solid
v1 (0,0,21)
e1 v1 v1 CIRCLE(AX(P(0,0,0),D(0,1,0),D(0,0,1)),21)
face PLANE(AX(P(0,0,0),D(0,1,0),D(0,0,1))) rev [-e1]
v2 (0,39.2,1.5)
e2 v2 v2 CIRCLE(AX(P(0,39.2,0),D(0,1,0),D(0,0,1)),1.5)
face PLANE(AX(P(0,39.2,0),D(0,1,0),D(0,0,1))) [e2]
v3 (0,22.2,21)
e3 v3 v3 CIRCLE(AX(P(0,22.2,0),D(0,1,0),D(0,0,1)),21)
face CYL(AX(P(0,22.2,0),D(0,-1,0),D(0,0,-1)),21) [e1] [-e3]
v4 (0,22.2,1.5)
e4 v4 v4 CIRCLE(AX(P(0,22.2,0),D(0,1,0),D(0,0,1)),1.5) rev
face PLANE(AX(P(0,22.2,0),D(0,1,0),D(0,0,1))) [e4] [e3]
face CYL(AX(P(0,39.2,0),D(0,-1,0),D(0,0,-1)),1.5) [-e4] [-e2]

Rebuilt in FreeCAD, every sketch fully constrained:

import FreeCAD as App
import Part
import Sketcher
from FreeCAD import Vector

doc = App.newDocument("Part")
params = doc.addObject("Spreadsheet::Sheet", "Params")
for row, (alias, value) in enumerate([
    ("sketch1_diameter", "42 mm"),
    ("pad1_length", "22.2 mm"),
    ("sketch2_diameter", "3 mm"),
    ("pad2_length", "39.2 mm"),
], start=1):
    params.set(f"A{row}", alias)
    params.set(f"B{row}", "=" + value)
    params.setAlias(f"B{row}", alias)

body = doc.addObject("PartDesign::Body", "Body")

# Sketch on XZ plane
sketch1 = doc.addObject("Sketcher::SketchObject", "Sketch")
body.addObject(sketch1)
sketch1.AttachmentSupport = (doc.XZ_Plane, [""])
sketch1.MapMode = "FlatFace"
sketch1.addGeometry(Part.Circle(Vector(0, 0, 0), Vector(0, 0, 1), 21), False)
sketch1.addConstraint(Sketcher.Constraint("Coincident", 0, 3, -1, 1))
sketch1.addConstraint(Sketcher.Constraint("Diameter", 0, 42.0))
sketch1.setExpression("Constraints[1]", "Params.sketch1_diameter")
pad1 = doc.addObject("PartDesign::Pad", "Pad")
body.addObject(pad1)
pad1.Profile = sketch1
pad1.setExpression("Length", "Params.pad1_length")
pad1.Reversed = True

# Sketch on XZ plane
sketch2 = doc.addObject("Sketcher::SketchObject", "Sketch001")
body.addObject(sketch2)
sketch2.AttachmentSupport = (doc.XZ_Plane, [""])
sketch2.MapMode = "FlatFace"
sketch2.addGeometry(Part.Circle(Vector(0, 0, 0), Vector(0, 0, 1), 1.5), False)
sketch2.addConstraint(Sketcher.Constraint("Coincident", 0, 3, -1, 1))
sketch2.addConstraint(Sketcher.Constraint("Diameter", 0, 3.0))
sketch2.setExpression("Constraints[1]", "Params.sketch2_diameter")
pad2 = doc.addObject("PartDesign::Pad", "Pad001")
body.addObject(pad2)
pad2.Profile = sketch2
pad2.setExpression("Length", "Params.pad2_length")
pad2.Reversed = True

doc.recompute()
